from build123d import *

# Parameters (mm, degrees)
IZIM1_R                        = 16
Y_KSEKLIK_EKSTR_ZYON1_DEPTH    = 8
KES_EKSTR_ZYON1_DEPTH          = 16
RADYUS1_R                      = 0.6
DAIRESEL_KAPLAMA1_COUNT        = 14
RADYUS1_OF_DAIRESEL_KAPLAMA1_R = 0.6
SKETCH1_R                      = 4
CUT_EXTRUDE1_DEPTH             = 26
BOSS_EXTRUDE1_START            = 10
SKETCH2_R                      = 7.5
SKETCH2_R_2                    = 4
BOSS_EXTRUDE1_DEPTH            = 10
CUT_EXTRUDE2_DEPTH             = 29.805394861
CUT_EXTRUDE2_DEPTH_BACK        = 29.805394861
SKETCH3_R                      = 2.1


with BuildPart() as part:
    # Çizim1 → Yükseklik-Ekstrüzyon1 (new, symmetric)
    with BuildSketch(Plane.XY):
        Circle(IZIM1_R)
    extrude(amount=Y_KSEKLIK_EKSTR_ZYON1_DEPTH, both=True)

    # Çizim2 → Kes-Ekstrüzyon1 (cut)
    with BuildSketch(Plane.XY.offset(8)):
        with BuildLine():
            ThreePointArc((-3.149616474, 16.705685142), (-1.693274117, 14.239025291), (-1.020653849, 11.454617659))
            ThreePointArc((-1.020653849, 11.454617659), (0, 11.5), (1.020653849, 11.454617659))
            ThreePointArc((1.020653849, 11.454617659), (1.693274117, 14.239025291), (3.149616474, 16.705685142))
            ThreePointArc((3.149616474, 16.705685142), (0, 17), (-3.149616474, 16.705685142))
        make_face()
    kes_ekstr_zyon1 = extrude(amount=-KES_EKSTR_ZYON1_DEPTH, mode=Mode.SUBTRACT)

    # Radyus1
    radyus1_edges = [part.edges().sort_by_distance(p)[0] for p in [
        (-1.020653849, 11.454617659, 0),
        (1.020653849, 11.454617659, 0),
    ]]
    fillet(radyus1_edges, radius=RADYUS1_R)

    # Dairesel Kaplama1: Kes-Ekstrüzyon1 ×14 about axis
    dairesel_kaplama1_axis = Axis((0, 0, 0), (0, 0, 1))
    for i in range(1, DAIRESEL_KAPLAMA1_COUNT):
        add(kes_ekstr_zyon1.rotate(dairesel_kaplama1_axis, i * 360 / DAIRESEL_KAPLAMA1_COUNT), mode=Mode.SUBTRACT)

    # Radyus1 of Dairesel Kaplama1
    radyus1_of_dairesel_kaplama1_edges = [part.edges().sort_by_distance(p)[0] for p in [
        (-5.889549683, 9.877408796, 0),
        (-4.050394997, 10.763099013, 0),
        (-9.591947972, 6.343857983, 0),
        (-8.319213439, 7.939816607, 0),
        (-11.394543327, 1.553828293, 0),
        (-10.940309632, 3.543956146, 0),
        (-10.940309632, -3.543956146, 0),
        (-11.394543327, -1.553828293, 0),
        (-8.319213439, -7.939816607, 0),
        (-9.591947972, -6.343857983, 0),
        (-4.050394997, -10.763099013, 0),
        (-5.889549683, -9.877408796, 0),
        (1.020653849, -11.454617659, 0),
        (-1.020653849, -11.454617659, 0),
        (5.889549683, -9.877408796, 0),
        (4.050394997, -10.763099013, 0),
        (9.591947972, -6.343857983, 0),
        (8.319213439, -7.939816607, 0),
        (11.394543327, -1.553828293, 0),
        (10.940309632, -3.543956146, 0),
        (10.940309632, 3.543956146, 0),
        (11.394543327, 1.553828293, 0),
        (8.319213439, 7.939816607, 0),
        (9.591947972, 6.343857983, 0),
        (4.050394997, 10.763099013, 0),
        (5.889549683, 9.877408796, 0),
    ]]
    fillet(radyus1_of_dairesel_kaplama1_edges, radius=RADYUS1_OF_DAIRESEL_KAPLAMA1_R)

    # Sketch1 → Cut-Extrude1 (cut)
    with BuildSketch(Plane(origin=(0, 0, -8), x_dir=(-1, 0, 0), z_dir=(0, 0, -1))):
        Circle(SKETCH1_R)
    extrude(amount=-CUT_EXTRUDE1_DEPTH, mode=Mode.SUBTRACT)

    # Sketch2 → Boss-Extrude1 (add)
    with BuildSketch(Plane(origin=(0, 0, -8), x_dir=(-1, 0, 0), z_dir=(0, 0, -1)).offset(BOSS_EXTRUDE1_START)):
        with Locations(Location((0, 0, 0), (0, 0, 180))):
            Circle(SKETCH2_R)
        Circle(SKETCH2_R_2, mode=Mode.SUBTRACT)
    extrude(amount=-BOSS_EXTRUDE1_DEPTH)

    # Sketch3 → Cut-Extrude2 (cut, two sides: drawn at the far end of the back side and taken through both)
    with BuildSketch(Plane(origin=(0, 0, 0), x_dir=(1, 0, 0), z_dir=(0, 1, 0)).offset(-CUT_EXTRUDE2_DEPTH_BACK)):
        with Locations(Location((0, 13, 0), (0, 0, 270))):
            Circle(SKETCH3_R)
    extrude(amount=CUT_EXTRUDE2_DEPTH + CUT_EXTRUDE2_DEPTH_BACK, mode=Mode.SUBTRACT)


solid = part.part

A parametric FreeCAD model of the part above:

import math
import FreeCAD as App
import Part
import Sketcher

V = App.Vector


def edges_at(feature, points):
    """Names of the edges that pass closest to the given points."""
    edges = feature.Shape.Edges
    near = lambda p: min(range(len(edges)), key=lambda i: edges[i].distToShape(Part.Vertex(*p))[0])
    return sorted({f"Edge{near(p) + 1}" for p in points})

doc = App.newDocument("Part")
body = doc.addObject("PartDesign::Body", "Body")

sketch1 = body.newObject("Sketcher::SketchObject", "Sketch")
sketch1.AttachmentSupport = (doc.getObject("XY_Plane"), [""])
sketch1.MapMode = "FlatFace"
sketch1.addGeometry(Part.Circle(V(0, 0, 0), V(0, 0, 1), 16), False)
sketch1.addConstraint([
    Sketcher.Constraint("Coincident", 0, 3, -1, 1),
    Sketcher.Constraint("Diameter", 0, 32.0),
])
pad1 = body.newObject("PartDesign::Pad", "Pad")
pad1.Profile = sketch1
pad1.Length = 16
pad1.Midplane = True

sketch2 = body.newObject("Sketcher::SketchObject", "Sketch001")
sketch2.AttachmentSupport = (doc.getObject("XY_Plane"), [""])
sketch2.MapMode = "FlatFace"
sketch2.AttachmentOffset = App.Placement(V(0, 0, 8), App.Rotation())
sketch2.addGeometry([
    Part.ArcOfCircle(Part.Circle(V(-10.7, 10.6, 0), V(0, 0, 1), 9.7), math.radians(5), math.radians(39)),
    Part.ArcOfCircle(Part.Circle(V(0, 0, 0), V(0, 0, 1), 11.5), math.radians(84.91), math.radians(95.09)),
    Part.ArcOfCircle(Part.Circle(V(10.7, 10.6, 0), V(0, 0, 1), 9.7), math.radians(141), math.radians(175)),
    Part.ArcOfCircle(Part.Circle(V(0, 0, 0), V(0, 0, 1), 17), math.radians(79), math.radians(101)),
], False)
sketch2.addConstraint([
    Sketcher.Constraint("Coincident", 0, 1, 1, 2),
    Sketcher.Constraint("Coincident", 1, 1, 2, 2),
    Sketcher.Constraint("Coincident", 2, 1, 3, 1),
    Sketcher.Constraint("Coincident", 3, 2, 0, 2),
    Sketcher.Constraint("Coincident", 1, 3, -1, 1),
    Sketcher.Constraint("Coincident", 3, 3, -1, 1),
    Sketcher.Constraint("Equal", 0, 2),
    Sketcher.Constraint("Symmetric", 0, 3, 2, 3, -2),
    Sketcher.Constraint("Radius", 3, 17.0),
    Sketcher.Constraint("Radius", 1, 11.5),
    Sketcher.Constraint("Radius", 0, 9.702595),
    Sketcher.Constraint("DistanceX", 0, 3, -1, 1, 10.68496),
    Sketcher.Constraint("DistanceY", -1, 1, 0, 3, 10.593488),
])
pocket1 = body.newObject("PartDesign::Pocket", "Pocket")
pocket1.Profile = sketch2
pocket1.Length = 16
doc.recompute()

fillet = body.newObject("PartDesign::Fillet", "Fillet")
fillet.Base = (pocket1, edges_at(pocket1, [(-1.021, 11.455, 0), (1.021, 11.455, 0)]))
fillet.Radius = 0.6
doc.recompute()

polarpattern = body.newObject("PartDesign::PolarPattern", "PolarPattern")
polarpattern.Originals = [pocket1]
polarpattern.Axis = (doc.getObject("Z_Axis"), [""])
polarpattern.Angle = 360
polarpattern.Occurrences = 14
body.Tip = polarpattern
doc.recompute()

fillet2 = body.newObject("PartDesign::Fillet", "Fillet001")
fillet2.Base = (polarpattern, edges_at(polarpattern, [
    (-5.89, 9.877, 0),
    (-4.05, 10.763, 0),
    (-9.592, 6.344, 0),
    (-8.319, 7.94, 0),
    (-11.395, 1.554, 0),
    (-10.94, 3.544, 0),
    (-10.94, -3.544, 0),
    (-11.395, -1.554, 0),
    (-8.319, -7.94, 0),
    (-9.592, -6.344, 0),
    (-4.05, -10.763, 0),
    (-5.89, -9.877, 0),
    (1.021, -11.455, 0),
    (-1.021, -11.455, 0),
    (5.89, -9.877, 0),
    (4.05, -10.763, 0),
    (9.592, -6.344, 0),
    (8.319, -7.94, 0),
    (11.395, -1.554, 0),
    (10.94, -3.544, 0),
    (10.94, 3.544, 0),
    (11.395, 1.554, 0),
    (8.319, 7.94, 0),
    (9.592, 6.344, 0),
    (4.05, 10.763, 0),
    (5.89, 9.877, 0),
]))
fillet2.Radius = 0.6

sketch3 = body.newObject("Sketcher::SketchObject", "Sketch002")
sketch3.AttachmentSupport = (doc.getObject("XY_Plane"), [""])
sketch3.MapMode = "FlatFace"
sketch3.AttachmentOffset = App.Placement(V(0, 0, -8), App.Rotation())
sketch3.addGeometry(Part.Circle(V(0, 0, 0), V(0, 0, 1), 4), False)
sketch3.addConstraint([
    Sketcher.Constraint("Coincident", 0, 3, -1, 1),
    Sketcher.Constraint("Diameter", 0, 8.0),
])
pocket2 = body.newObject("PartDesign::Pocket", "Pocket001")
pocket2.Profile = sketch3
pocket2.Length = 26
pocket2.Reversed = True

sketch4 = body.newObject("Sketcher::SketchObject", "Sketch003")
sketch4.AttachmentSupport = (doc.getObject("XY_Plane"), [""])
sketch4.MapMode = "FlatFace"
sketch4.AttachmentOffset = App.Placement(V(0, 0, -18), App.Rotation())
sketch4.addGeometry([
    Part.Circle(V(0, 0, 0), V(0, 0, 1), 7.5),
    Part.Circle(V(0, 0, 0), V(0, 0, 1), 4),
], False)
sketch4.addConstraint([
    Sketcher.Constraint("Coincident", 0, 3, -1, 1),
    Sketcher.Constraint("Coincident", 1, 3, -1, 1),
    Sketcher.Constraint("Diameter", 0, 15.0),
    Sketcher.Constraint("Diameter", 1, 8.0),
])
pad2 = body.newObject("PartDesign::Pad", "Pad001")
pad2.Profile = sketch4
pad2.Length = 10

sketch5 = body.newObject("Sketcher::SketchObject", "Sketch004")
sketch5.AttachmentSupport = (doc.getObject("XZ_Plane"), [""])
sketch5.MapMode = "FlatFace"
sketch5.addGeometry(Part.Circle(V(0, -13, 0), V(0, 0, 1), 2.1), False)
sketch5.addConstraint([
    Sketcher.Constraint("PointOnObject", 0, 3, -2),
    Sketcher.Constraint("Diameter", 0, 4.2),
    Sketcher.Constraint("DistanceY", 0, 3, -1, 1, 13.0),
])
pocket3 = body.newObject("PartDesign::Pocket", "Pocket002")
pocket3.Profile = sketch5
pocket3.Type = "ThroughAll"
pocket3.Midplane = True

doc.recompute()
